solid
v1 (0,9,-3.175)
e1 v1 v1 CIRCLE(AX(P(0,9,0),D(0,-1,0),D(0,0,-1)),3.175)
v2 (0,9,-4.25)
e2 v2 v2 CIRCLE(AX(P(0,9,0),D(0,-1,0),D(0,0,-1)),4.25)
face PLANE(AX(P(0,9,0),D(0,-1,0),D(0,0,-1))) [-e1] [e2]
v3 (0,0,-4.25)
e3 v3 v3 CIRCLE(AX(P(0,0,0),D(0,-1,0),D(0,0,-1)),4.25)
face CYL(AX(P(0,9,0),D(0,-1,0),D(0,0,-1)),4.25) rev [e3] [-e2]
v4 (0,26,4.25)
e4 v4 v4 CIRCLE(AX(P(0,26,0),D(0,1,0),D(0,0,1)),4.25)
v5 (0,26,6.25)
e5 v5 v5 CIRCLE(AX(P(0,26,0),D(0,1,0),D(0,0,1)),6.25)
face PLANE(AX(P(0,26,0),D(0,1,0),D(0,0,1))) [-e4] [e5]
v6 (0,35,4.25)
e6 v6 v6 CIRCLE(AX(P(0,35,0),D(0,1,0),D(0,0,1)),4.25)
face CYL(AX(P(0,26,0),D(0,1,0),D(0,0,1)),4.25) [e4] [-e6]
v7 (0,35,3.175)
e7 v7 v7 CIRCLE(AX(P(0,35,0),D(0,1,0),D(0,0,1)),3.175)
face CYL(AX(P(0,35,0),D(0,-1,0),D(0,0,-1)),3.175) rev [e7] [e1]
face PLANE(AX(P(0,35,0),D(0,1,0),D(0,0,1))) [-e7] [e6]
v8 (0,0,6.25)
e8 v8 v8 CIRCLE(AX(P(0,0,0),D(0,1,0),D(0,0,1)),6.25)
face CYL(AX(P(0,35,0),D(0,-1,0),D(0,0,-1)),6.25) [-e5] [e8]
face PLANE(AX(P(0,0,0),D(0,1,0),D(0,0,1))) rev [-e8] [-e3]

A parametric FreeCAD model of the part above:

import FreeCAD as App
import Part
import Sketcher

V = App.Vector


def add_polygon(sketch, points):
    """Adds a closed chain of lines whose ends are joined by coincident constraints."""
    first, n = sketch.GeometryCount, len(points)
    for a, b in zip(points, points[1:] + points[:1]):
        sketch.addGeometry(Part.LineSegment(App.Vector(*a, 0), App.Vector(*b, 0)), False)
    for i in range(n):
        sketch.addConstraint(Sketcher.Constraint("Coincident", first + i, 2, first + (i + 1) % n, 1))

doc = App.newDocument("Part")
body = doc.addObject("PartDesign::Body", "Body")

# Sketch on XZ plane
sketch1 = doc.addObject("Sketcher::SketchObject", "Sketch")
body.addObject(sketch1)
sketch1.AttachmentSupport = (doc.XZ_Plane, [""])
sketch1.MapMode = "FlatFace"
sketch1.addGeometry([
    Part.Circle(V(0, 0, 0), V(0, 0, 1), 6.2),
    Part.Circle(V(0, 0, 0), V(0, 0, 1), 3.2),
], False)
sketch1.addConstraint([
    Sketcher.Constraint("Coincident", 0, 3, -1, 1),
    Sketcher.Constraint("Coincident", 1, 3, -1, 1),
    Sketcher.Constraint("Diameter", 0, 12.5),
    Sketcher.Constraint("Diameter", 1, 6.35),
])
pad1 = doc.addObject("PartDesign::Pad", "Pad")
body.addObject(pad1)
pad1.Profile = sketch1
pad1.Length = 35
pad1.Reversed = True

# Sketch on XZ plane
sketch2 = doc.addObject("Sketcher::SketchObject", "Sketch001")
body.addObject(sketch2)
sketch2.AttachmentSupport = (doc.XZ_Plane, [""])
sketch2.MapMode = "FlatFace"
sketch2.AttachmentOffset = App.Placement(V(0, 0, -35), App.Rotation())
add_polygon(sketch2, [(-11.2, -11.2), (-11.2, 11.2), (11.2, 11.2), (11.2, -11.2)])  # lines 0-3
sketch2.addGeometry(Part.Circle(V(0, 0, 0), V(0, 0, 1), 4.2), False)  # 4
sketch2.addConstraint([
    Sketcher.Constraint("Vertical", 0),
    Sketcher.Constraint("Horizontal", 1),
    Sketcher.Constraint("Vertical", 2),
    Sketcher.Constraint("Horizontal", 3),
    Sketcher.Constraint("Coincident", 4, 3, -1, 1),
    Sketcher.Constraint("Symmetric", 0, 2, 2, 2, -1, 1),
    Sketcher.Constraint("Equal", 3, 0),
    Sketcher.Constraint("Diameter", 4, 8.5),
    Sketcher.Constraint("DistanceX", 1, 1, 1, 2, 22.342),
])
pocket1 = doc.addObject("PartDesign::Pocket", "Pocket")
body.addObject(pocket1)
pocket1.Profile = sketch2
pocket1.Length = 9
pocket1.Reversed = True

# Sketch on XZ plane
sketch3 = doc.addObject("Sketcher::SketchObject", "Sketch002")
body.addObject(sketch3)
sketch3.AttachmentSupport = (doc.XZ_Plane, [""])
sketch3.MapMode = "FlatFace"
sketch3.addGeometry(Part.Circle(V(0, 0, 0), V(0, 0, 1), 4.2), False)
sketch3.addConstraint([
    Sketcher.Constraint("Coincident", 0, 3, -1, 1),
    Sketcher.Constraint("Diameter", 0, 8.5),
])
pocket2 = doc.addObject("PartDesign::Pocket", "Pocket001")
body.addObject(pocket2)
pocket2.Profile = sketch3
pocket2.Length = 9

doc.recompute()
